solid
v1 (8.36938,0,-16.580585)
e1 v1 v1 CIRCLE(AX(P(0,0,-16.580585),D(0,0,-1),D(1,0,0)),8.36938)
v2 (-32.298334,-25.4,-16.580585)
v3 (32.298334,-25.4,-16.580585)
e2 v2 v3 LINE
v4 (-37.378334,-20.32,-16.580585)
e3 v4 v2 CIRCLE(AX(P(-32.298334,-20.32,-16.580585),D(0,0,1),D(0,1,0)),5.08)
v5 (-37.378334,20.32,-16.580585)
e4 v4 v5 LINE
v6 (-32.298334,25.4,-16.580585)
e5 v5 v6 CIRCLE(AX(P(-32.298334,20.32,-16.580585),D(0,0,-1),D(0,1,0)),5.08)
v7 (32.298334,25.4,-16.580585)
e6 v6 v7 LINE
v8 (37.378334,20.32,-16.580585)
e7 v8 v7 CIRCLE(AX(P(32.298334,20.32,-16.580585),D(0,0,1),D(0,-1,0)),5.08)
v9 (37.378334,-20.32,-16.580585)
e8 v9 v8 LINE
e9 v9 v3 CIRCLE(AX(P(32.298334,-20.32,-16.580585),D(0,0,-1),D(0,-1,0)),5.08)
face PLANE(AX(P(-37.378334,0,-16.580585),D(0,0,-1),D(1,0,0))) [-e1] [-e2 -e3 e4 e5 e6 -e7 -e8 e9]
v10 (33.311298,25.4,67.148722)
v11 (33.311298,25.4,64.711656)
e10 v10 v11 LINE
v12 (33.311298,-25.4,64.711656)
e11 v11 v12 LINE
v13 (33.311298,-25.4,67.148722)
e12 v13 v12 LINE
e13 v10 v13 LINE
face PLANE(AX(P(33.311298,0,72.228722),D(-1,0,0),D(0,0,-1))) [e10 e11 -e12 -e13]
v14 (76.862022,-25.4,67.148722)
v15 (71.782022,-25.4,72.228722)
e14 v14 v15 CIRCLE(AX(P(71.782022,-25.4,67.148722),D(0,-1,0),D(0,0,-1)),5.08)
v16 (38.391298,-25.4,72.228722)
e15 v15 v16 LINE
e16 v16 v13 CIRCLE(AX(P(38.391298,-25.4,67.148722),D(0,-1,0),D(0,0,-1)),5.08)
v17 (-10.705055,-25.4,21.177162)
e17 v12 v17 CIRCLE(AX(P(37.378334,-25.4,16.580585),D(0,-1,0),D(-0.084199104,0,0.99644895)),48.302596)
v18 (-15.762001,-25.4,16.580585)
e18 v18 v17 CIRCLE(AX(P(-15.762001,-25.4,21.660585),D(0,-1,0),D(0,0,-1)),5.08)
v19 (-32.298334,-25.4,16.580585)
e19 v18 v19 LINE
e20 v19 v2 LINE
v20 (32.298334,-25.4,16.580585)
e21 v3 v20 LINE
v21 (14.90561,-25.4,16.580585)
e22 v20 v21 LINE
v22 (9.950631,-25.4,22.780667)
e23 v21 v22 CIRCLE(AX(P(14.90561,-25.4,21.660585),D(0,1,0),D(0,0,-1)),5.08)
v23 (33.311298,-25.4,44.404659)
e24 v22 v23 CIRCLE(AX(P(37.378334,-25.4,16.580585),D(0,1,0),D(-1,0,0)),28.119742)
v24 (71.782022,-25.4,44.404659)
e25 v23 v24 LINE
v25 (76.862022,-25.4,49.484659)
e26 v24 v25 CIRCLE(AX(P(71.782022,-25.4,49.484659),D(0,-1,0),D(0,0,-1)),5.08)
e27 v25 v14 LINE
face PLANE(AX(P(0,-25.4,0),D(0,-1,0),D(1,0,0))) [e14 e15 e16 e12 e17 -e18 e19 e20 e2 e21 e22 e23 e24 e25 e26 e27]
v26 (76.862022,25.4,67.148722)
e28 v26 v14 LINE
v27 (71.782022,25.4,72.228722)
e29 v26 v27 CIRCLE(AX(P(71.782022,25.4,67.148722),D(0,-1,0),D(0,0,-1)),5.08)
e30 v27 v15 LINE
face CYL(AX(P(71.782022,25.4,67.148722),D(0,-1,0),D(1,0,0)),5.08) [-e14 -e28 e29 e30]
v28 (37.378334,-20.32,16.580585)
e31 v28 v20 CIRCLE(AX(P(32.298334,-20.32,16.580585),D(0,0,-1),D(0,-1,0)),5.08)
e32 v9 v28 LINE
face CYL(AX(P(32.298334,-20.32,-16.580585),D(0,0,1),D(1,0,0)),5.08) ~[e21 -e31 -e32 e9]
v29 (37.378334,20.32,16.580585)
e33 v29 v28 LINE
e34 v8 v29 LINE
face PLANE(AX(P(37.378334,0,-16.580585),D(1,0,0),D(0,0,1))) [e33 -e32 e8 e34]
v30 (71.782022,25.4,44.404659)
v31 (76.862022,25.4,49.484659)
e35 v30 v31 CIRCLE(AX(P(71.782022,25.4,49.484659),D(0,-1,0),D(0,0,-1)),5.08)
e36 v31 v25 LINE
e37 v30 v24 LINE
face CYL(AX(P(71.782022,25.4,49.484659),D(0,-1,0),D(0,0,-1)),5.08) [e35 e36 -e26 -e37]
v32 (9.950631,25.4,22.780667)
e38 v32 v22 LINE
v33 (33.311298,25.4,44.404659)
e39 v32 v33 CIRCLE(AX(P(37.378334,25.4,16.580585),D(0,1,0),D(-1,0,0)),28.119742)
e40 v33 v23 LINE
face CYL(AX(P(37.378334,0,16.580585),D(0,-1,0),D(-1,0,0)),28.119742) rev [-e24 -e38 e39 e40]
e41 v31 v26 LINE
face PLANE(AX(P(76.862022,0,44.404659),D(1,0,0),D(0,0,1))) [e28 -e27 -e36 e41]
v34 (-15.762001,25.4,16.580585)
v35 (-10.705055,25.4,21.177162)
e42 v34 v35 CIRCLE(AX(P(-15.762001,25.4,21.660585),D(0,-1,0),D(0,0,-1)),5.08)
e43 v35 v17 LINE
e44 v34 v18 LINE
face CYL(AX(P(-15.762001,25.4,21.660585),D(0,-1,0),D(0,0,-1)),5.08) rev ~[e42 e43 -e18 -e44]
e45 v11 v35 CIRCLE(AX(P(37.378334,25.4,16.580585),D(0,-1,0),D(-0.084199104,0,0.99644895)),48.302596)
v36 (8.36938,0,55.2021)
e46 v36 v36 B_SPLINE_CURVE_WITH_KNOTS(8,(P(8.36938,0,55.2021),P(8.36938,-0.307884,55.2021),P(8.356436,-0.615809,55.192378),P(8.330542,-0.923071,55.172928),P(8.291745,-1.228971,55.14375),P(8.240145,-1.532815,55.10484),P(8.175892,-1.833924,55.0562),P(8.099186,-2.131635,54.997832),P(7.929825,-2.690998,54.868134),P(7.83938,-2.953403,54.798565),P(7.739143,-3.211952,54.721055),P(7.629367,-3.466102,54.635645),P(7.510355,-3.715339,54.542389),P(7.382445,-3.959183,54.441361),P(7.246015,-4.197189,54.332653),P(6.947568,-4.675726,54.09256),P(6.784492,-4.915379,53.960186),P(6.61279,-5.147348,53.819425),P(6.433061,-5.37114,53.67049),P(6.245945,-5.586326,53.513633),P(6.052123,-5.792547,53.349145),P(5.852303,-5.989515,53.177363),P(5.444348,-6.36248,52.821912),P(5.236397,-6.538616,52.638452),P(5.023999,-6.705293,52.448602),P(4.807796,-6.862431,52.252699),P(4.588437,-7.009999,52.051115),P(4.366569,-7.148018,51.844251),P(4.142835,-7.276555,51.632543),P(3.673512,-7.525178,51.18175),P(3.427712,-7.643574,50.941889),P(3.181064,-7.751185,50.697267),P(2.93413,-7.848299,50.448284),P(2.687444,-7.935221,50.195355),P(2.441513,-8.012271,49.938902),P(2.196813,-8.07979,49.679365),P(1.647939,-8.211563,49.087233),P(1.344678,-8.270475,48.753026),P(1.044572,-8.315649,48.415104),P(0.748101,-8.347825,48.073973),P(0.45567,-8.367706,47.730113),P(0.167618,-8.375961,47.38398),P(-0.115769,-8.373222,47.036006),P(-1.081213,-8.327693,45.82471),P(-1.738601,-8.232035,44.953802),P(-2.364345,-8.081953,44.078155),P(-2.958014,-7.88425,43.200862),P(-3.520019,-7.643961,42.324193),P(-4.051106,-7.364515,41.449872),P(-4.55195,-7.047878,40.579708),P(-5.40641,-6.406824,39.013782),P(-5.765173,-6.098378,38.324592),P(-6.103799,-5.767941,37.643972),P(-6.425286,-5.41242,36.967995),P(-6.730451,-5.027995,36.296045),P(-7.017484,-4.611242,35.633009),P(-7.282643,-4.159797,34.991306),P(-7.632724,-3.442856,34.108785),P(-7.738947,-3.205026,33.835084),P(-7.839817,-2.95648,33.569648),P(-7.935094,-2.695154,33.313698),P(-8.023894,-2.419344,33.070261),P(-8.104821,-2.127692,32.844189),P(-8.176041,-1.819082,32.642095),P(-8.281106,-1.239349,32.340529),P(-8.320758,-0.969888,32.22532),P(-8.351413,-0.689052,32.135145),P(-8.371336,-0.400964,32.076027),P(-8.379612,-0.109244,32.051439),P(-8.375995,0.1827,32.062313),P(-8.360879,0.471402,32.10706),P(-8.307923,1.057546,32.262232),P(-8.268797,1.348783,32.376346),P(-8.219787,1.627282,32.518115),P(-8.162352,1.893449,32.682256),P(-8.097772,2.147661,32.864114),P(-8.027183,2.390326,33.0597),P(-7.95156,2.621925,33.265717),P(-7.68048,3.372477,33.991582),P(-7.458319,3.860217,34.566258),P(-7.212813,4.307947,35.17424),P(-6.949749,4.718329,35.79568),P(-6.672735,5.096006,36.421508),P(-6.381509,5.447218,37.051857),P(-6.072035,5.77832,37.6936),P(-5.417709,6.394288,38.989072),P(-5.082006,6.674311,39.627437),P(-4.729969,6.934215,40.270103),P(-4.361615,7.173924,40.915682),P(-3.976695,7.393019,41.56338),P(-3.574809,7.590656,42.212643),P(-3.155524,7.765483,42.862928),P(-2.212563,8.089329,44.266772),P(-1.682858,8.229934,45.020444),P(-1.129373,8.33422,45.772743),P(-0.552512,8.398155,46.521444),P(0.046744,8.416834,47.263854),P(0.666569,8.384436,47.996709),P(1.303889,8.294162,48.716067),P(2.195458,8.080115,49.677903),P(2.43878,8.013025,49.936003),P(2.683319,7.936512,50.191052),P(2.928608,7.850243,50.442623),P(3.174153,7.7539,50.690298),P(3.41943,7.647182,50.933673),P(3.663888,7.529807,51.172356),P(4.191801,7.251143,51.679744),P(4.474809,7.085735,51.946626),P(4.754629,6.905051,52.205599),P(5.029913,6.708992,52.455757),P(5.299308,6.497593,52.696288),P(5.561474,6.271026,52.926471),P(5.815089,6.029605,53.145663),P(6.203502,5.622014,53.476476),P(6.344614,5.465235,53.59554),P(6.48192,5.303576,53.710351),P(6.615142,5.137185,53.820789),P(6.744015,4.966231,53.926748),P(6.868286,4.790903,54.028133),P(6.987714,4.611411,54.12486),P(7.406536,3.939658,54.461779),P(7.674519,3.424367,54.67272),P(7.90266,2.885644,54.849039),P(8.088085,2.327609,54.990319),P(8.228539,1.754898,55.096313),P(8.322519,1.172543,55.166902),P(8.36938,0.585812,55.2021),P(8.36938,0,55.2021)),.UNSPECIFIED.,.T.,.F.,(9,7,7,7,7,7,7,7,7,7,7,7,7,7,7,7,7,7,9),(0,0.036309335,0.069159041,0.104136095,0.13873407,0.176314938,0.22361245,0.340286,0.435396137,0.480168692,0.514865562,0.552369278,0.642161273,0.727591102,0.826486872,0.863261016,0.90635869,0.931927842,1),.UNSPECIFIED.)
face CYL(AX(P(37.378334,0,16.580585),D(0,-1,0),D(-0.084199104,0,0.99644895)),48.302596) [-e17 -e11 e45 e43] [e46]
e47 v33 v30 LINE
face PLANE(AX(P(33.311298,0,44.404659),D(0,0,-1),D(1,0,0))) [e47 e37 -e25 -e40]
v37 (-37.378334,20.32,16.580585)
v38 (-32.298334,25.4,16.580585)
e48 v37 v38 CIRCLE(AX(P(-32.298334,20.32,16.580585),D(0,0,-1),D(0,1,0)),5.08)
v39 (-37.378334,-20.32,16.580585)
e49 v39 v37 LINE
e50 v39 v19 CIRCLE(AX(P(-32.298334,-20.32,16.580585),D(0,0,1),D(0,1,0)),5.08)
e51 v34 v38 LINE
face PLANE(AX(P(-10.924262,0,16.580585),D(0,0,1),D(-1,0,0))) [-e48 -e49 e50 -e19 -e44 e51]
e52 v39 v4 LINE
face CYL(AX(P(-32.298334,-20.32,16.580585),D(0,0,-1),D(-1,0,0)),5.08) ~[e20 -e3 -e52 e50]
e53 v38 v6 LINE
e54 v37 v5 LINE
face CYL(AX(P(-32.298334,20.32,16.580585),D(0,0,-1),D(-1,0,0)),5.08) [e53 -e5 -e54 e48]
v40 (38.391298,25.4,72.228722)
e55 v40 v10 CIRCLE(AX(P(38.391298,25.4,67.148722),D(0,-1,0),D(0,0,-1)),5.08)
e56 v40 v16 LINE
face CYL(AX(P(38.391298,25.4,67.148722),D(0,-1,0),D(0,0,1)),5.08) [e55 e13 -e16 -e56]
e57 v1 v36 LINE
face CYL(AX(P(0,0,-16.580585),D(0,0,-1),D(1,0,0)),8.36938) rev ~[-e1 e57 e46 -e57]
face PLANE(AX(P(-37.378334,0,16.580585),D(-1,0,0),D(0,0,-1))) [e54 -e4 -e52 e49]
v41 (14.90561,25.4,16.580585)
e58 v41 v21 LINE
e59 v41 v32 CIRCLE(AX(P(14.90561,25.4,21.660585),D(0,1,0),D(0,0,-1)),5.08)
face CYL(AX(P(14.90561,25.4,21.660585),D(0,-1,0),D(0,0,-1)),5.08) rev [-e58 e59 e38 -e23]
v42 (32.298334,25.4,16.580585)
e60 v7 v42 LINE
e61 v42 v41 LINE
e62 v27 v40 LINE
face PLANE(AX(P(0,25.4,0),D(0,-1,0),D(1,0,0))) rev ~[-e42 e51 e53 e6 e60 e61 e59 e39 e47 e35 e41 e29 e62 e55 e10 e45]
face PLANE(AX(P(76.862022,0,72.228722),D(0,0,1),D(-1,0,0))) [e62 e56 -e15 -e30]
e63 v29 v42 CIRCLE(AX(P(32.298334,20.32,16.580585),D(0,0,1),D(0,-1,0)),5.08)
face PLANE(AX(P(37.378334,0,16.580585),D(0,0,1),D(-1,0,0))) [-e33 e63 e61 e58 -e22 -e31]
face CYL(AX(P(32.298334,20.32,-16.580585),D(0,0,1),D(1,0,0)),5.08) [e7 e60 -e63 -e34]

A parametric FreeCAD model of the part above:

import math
import FreeCAD as App
import Part
import Sketcher

V = App.Vector
Q = App.Units.Quantity


def edges_at(feature, points):
    """Names of the edges that pass closest to the given points."""
    edges = feature.Shape.Edges
    near = lambda p: min(range(len(edges)), key=lambda i: edges[i].distToShape(Part.Vertex(*p))[0])
    return sorted({f"Edge{near(p) + 1}" for p in points})

doc = App.newDocument("Part")
body = doc.addObject("PartDesign::Body", "Body")

# Sketch on XZ plane
sketch1 = body.newObject("Sketcher::SketchObject", "Sketch")
sketch1.AttachmentSupport = (doc.getObject("XZ_Plane"), [""])
sketch1.MapMode = "FlatFace"
sketch1.addGeometry(Part.LineSegment(V(37, -17, 0), V(37, 17, 0)), False)
sketch1.addGeometry(Part.LineSegment(V(37, 17, 0), V(9, 17, 0)), False)
sketch1.addGeometry(Part.ArcOfCircle(Part.Circle(V(37, 17, 0), V(0, 0, 1), 28), math.radians(98), math.radians(180)), False)
sketch1.addGeometry(Part.LineSegment(V(33, 44, 0), V(77, 44, 0)), False)
sketch1.addGeometry(Part.LineSegment(V(77, 44, 0), V(77, 72, 0)), False)
sketch1.addGeometry(Part.LineSegment(V(77, 72, 0), V(33, 72, 0)), False)
sketch1.addGeometry(Part.LineSegment(V(33, 72, 0), V(33, 65, 0)), False)
sketch1.addGeometry(Part.ArcOfCircle(Part.Circle(V(37, 17, 0), V(0, 0, 1), 48), math.radians(95), math.radians(180)), False)
sketch1.addGeometry(Part.LineSegment(V(-11, 17, 0), V(-37, 17, 0)), False)
sketch1.addGeometry(Part.LineSegment(V(-37, 17, 0), V(-37, -17, 0)), False)
sketch1.addGeometry(Part.LineSegment(V(-37, -17, 0), V(37, -17, 0)), False)
sketch1.addConstraint(Sketcher.Constraint("Coincident", 0, 2, 1, 1))
sketch1.addConstraint(Sketcher.Constraint("Coincident", 1, 2, 2, 2))
sketch1.addConstraint(Sketcher.Constraint("Coincident", 2, 1, 3, 1))
sketch1.addConstraint(Sketcher.Constraint("Coincident", 3, 2, 4, 1))
sketch1.addConstraint(Sketcher.Constraint("Coincident", 4, 2, 5, 1))
sketch1.addConstraint(Sketcher.Constraint("Coincident", 5, 2, 6, 1))
sketch1.addConstraint(Sketcher.Constraint("Coincident", 6, 2, 7, 1))
sketch1.addConstraint(Sketcher.Constraint("Coincident", 7, 2, 8, 1))
sketch1.addConstraint(Sketcher.Constraint("Coincident", 8, 2, 9, 1))
sketch1.addConstraint(Sketcher.Constraint("Coincident", 9, 2, 10, 1))
sketch1.addConstraint(Sketcher.Constraint("Coincident", 10, 2, 0, 1))
sketch1.addConstraint(Sketcher.Constraint("Vertical", 0))
sketch1.addConstraint(Sketcher.Constraint("Horizontal", 1))
sketch1.addConstraint(Sketcher.Constraint("Horizontal", 3))
sketch1.addConstraint(Sketcher.Constraint("Vertical", 4))
sketch1.addConstraint(Sketcher.Constraint("Horizontal", 5))
sketch1.addConstraint(Sketcher.Constraint("Vertical", 6))
sketch1.addConstraint(Sketcher.Constraint("Horizontal", 8))
sketch1.addConstraint(Sketcher.Constraint("Vertical", 9))
sketch1.addConstraint(Sketcher.Constraint("Horizontal", 10))
sketch1.addConstraint(Sketcher.Constraint("Coincident", 7, 3, 2, 3))
sketch1.addConstraint(Sketcher.Constraint("Coincident", 0, 2, 2, 3))
sketch1.addConstraint(Sketcher.Constraint("Symmetric", 0, 2, 9, 2, -1, 1))
sketch1.addConstraint(Sketcher.Constraint("Horizontal", 1, 2, 7, 2))
sketch1.addConstraint(Sketcher.Constraint("Vertical", 2, 1, 5, 2))
sketch1.addConstraint(Sketcher.Constraint("Radius", 2, 28.119742))
sketch1.addConstraint(Sketcher.Constraint("Radius", 7, 48.302596))
sketch1.addConstraint(Sketcher.Constraint("DistanceX", 8, 2, 8, 1, 26.454071))
sketch1.addConstraint(Sketcher.Constraint("DistanceY", 0, 1, 0, 2, 33.161171))
sketch1.addConstraint(Sketcher.Constraint("DistanceX", -1, 1, 2, 1, 33.311298))
sketch1.addConstraint(Sketcher.Constraint("DistanceX", 3, 1, 3, 2, 43.550724))
sketch1.addConstraint(Sketcher.Constraint("DistanceY", 4, 1, 4, 2, 27.824063))
pad1 = body.newObject("PartDesign::Pad", "Pad")
pad1.Profile = sketch1
pad1.Length = Q("2 in")
pad1.Midplane = True
doc.recompute()

fillet = body.newObject("PartDesign::Fillet", "Fillet")
fillet.Base = (pad1, edges_at(pad1, [
    (-37.378, -25.4, 0),
    (37.378, -25.4, 0),
    (37.378, 25.4, 0),
    (-37.378, 25.4, 0),
]))
fillet.Radius = Q("0.2 in")
doc.recompute()

fillet2 = body.newObject("PartDesign::Fillet", "Fillet001")
fillet2.Base = (fillet, edges_at(fillet, [
    (9.259, 0, 16.581),
    (-10.924, 0, 16.581),
    (33.311, 0, 72.229),
    (76.862, 0, 72.229),
    (76.862, 0, 44.405),
]))
fillet2.Radius = Q("0.2 in")

# Sketch on XY plane
sketch2 = body.newObject("Sketcher::SketchObject", "Sketch001")
sketch2.AttachmentSupport = (doc.getObject("XY_Plane"), [""])
sketch2.MapMode = "FlatFace"
sketch2.AttachmentOffset = App.Placement(V(0, 0, -16.580585), App.Rotation())
sketch2.addGeometry(Part.Circle(V(0, 0, 0), V(0, 0, 1), 8), False)
sketch2.addConstraint(Sketcher.Constraint("Coincident", 0, 3, -1, 1))
sketch2.addConstraint(Sketcher.Constraint("Diameter", 0, 16.738761))
pocket1 = body.newObject("PartDesign::Pocket", "Pocket")
pocket1.Profile = sketch2
pocket1.Length = Q("3.91 in")
pocket1.Reversed = True

doc.recompute()
